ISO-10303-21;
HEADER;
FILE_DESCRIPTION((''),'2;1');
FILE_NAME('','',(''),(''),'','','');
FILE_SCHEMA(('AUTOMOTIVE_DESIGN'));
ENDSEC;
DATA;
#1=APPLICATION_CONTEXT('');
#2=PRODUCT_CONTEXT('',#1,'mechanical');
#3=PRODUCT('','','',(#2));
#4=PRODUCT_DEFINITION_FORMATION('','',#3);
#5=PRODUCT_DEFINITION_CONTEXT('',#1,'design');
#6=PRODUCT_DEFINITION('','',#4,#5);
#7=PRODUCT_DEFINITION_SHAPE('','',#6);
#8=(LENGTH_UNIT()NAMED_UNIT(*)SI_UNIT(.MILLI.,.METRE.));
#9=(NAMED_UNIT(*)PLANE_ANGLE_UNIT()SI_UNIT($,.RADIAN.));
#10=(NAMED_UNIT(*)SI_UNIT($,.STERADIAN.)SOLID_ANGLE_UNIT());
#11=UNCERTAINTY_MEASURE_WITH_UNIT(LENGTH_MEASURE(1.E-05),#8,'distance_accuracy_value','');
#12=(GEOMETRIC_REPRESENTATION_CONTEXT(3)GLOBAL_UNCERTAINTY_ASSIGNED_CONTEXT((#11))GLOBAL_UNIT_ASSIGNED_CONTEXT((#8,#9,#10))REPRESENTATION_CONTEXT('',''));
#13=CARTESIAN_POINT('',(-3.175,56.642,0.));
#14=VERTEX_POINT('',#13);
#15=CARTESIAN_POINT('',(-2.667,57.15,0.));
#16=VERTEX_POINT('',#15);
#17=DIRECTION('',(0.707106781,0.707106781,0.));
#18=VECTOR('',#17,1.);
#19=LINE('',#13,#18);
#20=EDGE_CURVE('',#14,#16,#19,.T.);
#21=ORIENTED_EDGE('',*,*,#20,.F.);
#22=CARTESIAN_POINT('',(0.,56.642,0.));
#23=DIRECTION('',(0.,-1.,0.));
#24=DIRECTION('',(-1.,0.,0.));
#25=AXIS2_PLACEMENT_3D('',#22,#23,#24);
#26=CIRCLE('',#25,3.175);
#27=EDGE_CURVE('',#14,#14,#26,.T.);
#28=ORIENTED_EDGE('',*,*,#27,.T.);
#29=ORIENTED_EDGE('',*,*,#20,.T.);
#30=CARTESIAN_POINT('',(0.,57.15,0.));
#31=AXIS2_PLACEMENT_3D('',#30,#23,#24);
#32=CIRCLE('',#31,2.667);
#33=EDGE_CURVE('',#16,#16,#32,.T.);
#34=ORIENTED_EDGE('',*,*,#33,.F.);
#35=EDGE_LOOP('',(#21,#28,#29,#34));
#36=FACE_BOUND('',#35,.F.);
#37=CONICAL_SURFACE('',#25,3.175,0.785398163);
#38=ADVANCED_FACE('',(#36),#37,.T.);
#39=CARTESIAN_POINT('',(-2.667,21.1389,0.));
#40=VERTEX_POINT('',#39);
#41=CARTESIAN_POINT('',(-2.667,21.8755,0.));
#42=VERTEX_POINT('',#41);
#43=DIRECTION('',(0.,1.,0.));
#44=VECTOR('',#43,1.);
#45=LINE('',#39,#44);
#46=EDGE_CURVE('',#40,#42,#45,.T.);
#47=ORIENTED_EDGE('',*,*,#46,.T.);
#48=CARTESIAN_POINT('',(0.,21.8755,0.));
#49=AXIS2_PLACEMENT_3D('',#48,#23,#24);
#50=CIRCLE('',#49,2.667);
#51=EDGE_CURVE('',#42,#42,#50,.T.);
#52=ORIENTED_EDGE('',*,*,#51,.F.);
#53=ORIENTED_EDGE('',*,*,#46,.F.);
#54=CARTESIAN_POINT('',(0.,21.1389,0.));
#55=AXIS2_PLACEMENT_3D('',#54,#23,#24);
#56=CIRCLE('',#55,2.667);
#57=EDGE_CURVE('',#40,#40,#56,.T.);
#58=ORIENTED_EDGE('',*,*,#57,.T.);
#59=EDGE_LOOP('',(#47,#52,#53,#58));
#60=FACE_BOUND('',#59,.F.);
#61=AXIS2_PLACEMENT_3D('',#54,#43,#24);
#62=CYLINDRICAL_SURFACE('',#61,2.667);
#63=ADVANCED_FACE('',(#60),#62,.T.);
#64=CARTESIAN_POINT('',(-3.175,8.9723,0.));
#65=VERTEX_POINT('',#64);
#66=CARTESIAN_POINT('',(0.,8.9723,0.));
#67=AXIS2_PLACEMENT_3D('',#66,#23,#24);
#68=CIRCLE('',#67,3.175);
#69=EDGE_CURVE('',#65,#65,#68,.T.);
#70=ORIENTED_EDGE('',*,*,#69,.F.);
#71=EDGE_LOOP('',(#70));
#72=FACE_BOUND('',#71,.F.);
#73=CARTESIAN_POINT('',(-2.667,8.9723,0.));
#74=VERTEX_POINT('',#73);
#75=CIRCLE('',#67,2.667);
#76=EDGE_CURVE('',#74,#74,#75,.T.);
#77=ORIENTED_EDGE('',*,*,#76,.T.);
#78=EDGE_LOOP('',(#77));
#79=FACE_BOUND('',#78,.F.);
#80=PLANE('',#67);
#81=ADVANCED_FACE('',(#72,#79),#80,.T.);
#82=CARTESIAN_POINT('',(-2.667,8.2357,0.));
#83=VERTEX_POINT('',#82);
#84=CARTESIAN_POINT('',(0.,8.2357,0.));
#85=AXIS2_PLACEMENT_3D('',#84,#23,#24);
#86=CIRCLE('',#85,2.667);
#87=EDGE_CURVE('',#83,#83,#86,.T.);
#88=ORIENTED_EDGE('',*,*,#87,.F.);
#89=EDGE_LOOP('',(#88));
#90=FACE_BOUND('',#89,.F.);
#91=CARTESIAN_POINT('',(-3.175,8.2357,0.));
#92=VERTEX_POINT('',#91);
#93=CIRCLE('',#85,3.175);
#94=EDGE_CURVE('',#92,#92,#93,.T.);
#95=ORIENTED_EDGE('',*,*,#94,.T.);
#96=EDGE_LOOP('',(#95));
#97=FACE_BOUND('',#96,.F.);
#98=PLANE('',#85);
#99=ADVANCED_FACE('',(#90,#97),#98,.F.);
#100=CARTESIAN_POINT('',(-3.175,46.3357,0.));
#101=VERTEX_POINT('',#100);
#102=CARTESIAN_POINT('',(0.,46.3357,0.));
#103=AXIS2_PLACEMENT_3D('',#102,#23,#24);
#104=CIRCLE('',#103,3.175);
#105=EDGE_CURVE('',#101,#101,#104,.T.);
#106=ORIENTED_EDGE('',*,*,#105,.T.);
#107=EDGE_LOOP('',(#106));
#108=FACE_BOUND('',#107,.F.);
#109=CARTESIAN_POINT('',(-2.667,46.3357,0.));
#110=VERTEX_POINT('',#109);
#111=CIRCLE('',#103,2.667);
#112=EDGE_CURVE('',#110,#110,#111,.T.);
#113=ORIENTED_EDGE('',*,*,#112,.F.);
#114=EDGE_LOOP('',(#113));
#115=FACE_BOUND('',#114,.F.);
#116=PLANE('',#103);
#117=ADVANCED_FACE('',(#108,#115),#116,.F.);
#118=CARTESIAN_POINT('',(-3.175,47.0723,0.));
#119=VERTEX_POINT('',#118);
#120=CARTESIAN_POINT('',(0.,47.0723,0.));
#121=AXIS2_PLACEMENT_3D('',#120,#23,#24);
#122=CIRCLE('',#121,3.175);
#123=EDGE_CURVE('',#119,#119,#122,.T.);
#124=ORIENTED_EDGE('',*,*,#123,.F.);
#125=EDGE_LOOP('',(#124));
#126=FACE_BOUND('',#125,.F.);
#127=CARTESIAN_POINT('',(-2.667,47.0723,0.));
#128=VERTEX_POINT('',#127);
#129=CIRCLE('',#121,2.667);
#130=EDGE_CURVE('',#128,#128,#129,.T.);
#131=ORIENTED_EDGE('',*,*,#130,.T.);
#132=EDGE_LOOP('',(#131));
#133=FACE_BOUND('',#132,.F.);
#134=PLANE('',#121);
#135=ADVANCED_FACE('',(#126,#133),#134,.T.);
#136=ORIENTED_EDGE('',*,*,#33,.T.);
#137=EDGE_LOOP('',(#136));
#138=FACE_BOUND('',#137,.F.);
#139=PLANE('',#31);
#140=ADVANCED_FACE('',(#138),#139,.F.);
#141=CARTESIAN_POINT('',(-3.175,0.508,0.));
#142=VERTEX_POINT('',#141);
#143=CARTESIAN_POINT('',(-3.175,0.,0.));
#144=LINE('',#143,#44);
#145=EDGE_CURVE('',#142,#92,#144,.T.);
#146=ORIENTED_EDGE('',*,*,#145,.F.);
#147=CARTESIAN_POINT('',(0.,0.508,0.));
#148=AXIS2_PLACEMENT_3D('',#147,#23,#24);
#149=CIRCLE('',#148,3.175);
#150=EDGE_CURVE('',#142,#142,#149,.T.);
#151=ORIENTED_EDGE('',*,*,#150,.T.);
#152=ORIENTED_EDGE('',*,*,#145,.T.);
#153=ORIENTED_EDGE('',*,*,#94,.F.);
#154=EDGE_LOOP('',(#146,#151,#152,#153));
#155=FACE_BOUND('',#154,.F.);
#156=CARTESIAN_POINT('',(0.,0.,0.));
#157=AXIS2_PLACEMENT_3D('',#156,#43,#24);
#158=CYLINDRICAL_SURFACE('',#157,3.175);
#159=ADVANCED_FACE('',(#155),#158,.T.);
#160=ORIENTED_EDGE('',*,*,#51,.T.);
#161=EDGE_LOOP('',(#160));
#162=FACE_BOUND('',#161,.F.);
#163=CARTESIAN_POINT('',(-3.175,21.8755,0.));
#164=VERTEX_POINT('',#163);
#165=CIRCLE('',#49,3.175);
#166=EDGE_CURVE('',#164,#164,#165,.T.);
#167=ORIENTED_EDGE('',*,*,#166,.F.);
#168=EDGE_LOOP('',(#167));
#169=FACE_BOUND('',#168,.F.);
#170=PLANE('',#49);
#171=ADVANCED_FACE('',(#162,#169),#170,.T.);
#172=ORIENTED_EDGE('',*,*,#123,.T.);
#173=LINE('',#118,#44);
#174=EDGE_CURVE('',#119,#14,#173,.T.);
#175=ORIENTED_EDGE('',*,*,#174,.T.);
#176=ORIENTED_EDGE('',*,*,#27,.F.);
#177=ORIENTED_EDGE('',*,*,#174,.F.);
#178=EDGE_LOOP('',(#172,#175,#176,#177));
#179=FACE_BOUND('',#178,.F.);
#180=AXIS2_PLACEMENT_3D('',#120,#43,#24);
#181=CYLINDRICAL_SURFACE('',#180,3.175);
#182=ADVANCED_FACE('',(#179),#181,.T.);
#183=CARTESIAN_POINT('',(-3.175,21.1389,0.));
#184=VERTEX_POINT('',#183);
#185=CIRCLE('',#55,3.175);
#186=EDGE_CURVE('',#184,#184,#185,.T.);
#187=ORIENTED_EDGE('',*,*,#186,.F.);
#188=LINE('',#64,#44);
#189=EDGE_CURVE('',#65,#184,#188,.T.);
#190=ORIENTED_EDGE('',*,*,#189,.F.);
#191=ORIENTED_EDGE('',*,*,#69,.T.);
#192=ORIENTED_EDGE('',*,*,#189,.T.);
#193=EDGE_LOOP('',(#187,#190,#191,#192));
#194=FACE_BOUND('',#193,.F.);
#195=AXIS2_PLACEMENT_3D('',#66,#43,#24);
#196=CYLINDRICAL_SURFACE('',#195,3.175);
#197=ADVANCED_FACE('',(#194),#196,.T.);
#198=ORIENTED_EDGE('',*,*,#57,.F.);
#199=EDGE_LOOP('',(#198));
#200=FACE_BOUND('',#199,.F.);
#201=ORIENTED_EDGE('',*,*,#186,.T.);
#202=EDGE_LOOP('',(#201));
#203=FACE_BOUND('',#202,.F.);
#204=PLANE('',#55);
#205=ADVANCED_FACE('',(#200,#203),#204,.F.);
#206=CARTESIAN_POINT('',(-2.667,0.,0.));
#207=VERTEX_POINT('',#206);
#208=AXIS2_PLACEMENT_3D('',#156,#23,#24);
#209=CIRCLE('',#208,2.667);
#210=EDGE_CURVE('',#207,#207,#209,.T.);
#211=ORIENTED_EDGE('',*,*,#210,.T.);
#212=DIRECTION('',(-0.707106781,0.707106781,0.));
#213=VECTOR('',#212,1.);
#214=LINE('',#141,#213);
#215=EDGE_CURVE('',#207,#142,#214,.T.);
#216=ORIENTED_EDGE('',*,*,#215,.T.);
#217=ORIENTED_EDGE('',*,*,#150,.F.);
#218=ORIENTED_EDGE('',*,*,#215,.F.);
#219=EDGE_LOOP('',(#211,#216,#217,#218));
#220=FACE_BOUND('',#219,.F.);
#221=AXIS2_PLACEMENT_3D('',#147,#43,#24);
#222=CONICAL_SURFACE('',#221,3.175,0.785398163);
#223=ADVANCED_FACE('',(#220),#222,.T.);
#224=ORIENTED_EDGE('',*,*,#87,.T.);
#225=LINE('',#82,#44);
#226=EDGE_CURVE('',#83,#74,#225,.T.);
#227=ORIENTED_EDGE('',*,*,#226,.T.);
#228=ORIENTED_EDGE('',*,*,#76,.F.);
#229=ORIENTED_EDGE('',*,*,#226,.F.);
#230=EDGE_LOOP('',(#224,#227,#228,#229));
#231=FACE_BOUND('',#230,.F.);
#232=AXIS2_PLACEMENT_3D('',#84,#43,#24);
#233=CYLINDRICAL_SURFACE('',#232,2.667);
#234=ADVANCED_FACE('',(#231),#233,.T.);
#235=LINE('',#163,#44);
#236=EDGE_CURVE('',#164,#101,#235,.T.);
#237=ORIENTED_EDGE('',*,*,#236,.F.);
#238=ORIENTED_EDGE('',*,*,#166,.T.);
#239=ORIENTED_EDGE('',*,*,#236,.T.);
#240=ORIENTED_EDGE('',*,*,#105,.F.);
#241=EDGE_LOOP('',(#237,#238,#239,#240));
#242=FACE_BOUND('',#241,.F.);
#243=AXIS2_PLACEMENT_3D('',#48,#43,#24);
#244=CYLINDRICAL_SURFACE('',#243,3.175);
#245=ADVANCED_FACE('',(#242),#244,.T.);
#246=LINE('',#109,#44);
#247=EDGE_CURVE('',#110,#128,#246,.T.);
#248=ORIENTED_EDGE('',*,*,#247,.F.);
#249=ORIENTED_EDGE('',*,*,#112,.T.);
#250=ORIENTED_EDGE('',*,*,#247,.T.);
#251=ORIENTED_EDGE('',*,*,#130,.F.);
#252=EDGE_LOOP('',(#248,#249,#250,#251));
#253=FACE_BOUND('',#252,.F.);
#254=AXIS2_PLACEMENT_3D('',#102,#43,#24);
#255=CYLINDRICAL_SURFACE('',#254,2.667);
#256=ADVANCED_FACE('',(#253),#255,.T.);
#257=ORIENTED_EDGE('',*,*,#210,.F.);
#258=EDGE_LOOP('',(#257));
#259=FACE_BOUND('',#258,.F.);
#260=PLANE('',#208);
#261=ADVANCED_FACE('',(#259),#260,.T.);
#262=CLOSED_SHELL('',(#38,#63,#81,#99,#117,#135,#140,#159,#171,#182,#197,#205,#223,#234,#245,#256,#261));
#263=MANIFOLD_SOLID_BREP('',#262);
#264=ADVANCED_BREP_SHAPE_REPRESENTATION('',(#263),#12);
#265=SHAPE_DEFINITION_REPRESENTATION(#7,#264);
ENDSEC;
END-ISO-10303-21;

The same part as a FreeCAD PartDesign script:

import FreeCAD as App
import Part
import Sketcher
from FreeCAD import Vector
Q = App.Units.Quantity


def edges_at(feature, points):
    """Names of the edges that pass closest to the given points."""
    edges = feature.Shape.Edges
    near = lambda p: min(range(len(edges)), key=lambda i: edges[i].distToShape(Part.Vertex(*p))[0])
    return sorted({f"Edge{near(p) + 1}" for p in points})


def add_polygon(sketch, points):
    """Adds a closed chain of lines whose ends are joined by coincident constraints."""
    first, n = sketch.GeometryCount, len(points)
    for a, b in zip(points, points[1:] + points[:1]):
        sketch.addGeometry(Part.LineSegment(App.Vector(*a, 0), App.Vector(*b, 0)), False)
    for i in range(n):
        sketch.addConstraint(Sketcher.Constraint("Coincident", first + i, 2, first + (i + 1) % n, 1))

doc = App.newDocument("Part")
body = doc.addObject("PartDesign::Body", "Body")

# Sketch on XY plane
sketch1 = body.newObject("Sketcher::SketchObject", "Sketch")
sketch1.AttachmentSupport = (doc.getObject("XY_Plane"), [""])
sketch1.MapMode = "FlatFace"
add_polygon(sketch1, [(-3.2, 57.1), (-3.2, 47.1), (-2.7, 47.1), (-2.7, 46.3), (-3.2, 46.3), (-3.2, 21.9), (-2.7, 21.9), (-2.7, 21.1), (-3.2, 21.1), (-3.2, 9), (-2.7, 9), (-2.7, 8.2), (-3.2, 8.2), (-3.2, 0), (0, 0), (0, 57.1)])  # lines 0-15
sketch1.addConstraint(Sketcher.Constraint("Vertical", 0))
sketch1.addConstraint(Sketcher.Constraint("Horizontal", 1))
sketch1.addConstraint(Sketcher.Constraint("Vertical", 2))
sketch1.addConstraint(Sketcher.Constraint("Horizontal", 3))
sketch1.addConstraint(Sketcher.Constraint("Vertical", 4))
sketch1.addConstraint(Sketcher.Constraint("Horizontal", 5))
sketch1.addConstraint(Sketcher.Constraint("Vertical", 6))
sketch1.addConstraint(Sketcher.Constraint("Horizontal", 7))
sketch1.addConstraint(Sketcher.Constraint("Vertical", 8))
sketch1.addConstraint(Sketcher.Constraint("Horizontal", 9))
sketch1.addConstraint(Sketcher.Constraint("Vertical", 10))
sketch1.addConstraint(Sketcher.Constraint("Horizontal", 11))
sketch1.addConstraint(Sketcher.Constraint("Vertical", 12))
sketch1.addConstraint(Sketcher.Constraint("Horizontal", 13))
sketch1.addConstraint(Sketcher.Constraint("Vertical", 14))
sketch1.addConstraint(Sketcher.Constraint("Horizontal", 15))
sketch1.addConstraint(Sketcher.Constraint("Coincident", 13, 2, -1, 1))
sketch1.addConstraint(Sketcher.Constraint("Vertical", 0, 2, 3, 2))
sketch1.addConstraint(Sketcher.Constraint("Vertical", 2, 2, 5, 2))
sketch1.addConstraint(Sketcher.Constraint("Vertical", 4, 2, 7, 2))
sketch1.addConstraint(Sketcher.Constraint("Vertical", 6, 2, 9, 2))
sketch1.addConstraint(Sketcher.Constraint("Vertical", 8, 2, 11, 2))
sketch1.addConstraint(Sketcher.Constraint("Equal", 2, 6))
sketch1.addConstraint(Sketcher.Constraint("Equal", 6, 10))
sketch1.addConstraint(Sketcher.Constraint("DistanceX", 1, 1, 1, 2, Q("0.02 in")))
sketch1.addConstraint(Sketcher.Constraint("DistanceY", 14, 1, 14, 2, Q("2.25 in")))
sketch1.addConstraint(Sketcher.Constraint("DistanceX", 13, 1, 13, 2, Q("0.125 in")))
sketch1.addConstraint(Sketcher.Constraint("DistanceY", 2, 2, 2, 1, Q("0.029 in")))
sketch1.addConstraint(Sketcher.Constraint("DistanceY", 4, 2, 4, 1, Q("0.963 in")))
sketch1.addConstraint(Sketcher.Constraint("DistanceY", 8, 2, 8, 1, Q("0.479 in")))
sketch1.addConstraint(Sketcher.Constraint("DistanceY", 0, 2, 0, 1, Q("10.0777 mm")))
revolution = body.newObject("PartDesign::Revolution", "Revolution")
revolution.Profile = sketch1
revolution.ReferenceAxis = (sketch1, ["V_Axis"])
revolution.Angle = 360
doc.recompute()

chamfer = body.newObject("PartDesign::Chamfer", "Chamfer")
chamfer.Base = (revolution, edges_at(revolution, [(3.175, 0, 0), (3.175, 57.15, 0)]))
chamfer.Size = Q("0.02 in")

doc.recompute()
